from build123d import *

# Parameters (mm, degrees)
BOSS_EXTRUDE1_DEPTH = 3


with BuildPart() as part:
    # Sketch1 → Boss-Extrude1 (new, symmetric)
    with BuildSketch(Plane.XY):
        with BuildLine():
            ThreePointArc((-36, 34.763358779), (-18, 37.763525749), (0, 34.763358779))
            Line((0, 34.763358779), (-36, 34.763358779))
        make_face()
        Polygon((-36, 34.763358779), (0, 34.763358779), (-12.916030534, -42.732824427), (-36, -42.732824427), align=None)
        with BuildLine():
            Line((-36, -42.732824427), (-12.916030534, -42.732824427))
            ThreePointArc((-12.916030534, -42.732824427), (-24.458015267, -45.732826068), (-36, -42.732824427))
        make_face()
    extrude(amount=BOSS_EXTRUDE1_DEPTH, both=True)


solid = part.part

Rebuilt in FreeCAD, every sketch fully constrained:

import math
import FreeCAD as App
import Part
import Sketcher

V = App.Vector

doc = App.newDocument("Part")
body = doc.addObject("PartDesign::Body", "Body")

# Sketch on XY plane
sketch1 = body.newObject("Sketcher::SketchObject", "Sketch")
sketch1.AttachmentSupport = (doc.getObject("XY_Plane"), [""])
sketch1.MapMode = "FlatFace"
sketch1.addGeometry([
    Part.ArcOfCircle(Part.Circle(V(-18, -18, 0), V(0, 0, 1), 55), math.radians(71), math.radians(109)),
    Part.LineSegment(V(-36, 35, 0), V(-36, -43, 0)),
    Part.ArcOfCircle(Part.Circle(V(-24, -22, 0), V(0, 0, 1), 24), math.radians(-119), math.radians(-61)),
    Part.LineSegment(V(-13, -43, 0), V(0, 35, 0)),
], False)
sketch1.addConstraint([
    Sketcher.Constraint("Coincident", 0, 2, 1, 1),
    Sketcher.Constraint("Coincident", 1, 2, 2, 1),
    Sketcher.Constraint("Coincident", 2, 2, 3, 1),
    Sketcher.Constraint("Coincident", 3, 2, 0, 1),
    Sketcher.Constraint("Vertical", 1),
    Sketcher.Constraint("PointOnObject", 3, 2, -2),
    Sketcher.Constraint("Horizontal", 1, 2, 2, 2),
    Sketcher.Constraint("Horizontal", 0, 2, 3, 2),
    Sketcher.Constraint("DistanceX", 0, 3, -1, 1, 18.0),
    Sketcher.Constraint("Radius", 0, 55.497078),
    Sketcher.Constraint("Radius", 2, 23.702891),
    Sketcher.Constraint("DistanceY", 1, 2, 1, 1, 77.496183),
    Sketcher.Constraint("DistanceY", -1, 1, 0, 2, 34.763359),
    Sketcher.Constraint("DistanceX", 2, 2, -1, 1, 12.916031),
])
pad1 = body.newObject("PartDesign::Pad", "Pad")
pad1.Profile = sketch1
pad1.Length = 6
pad1.Midplane = True

doc.recompute()
